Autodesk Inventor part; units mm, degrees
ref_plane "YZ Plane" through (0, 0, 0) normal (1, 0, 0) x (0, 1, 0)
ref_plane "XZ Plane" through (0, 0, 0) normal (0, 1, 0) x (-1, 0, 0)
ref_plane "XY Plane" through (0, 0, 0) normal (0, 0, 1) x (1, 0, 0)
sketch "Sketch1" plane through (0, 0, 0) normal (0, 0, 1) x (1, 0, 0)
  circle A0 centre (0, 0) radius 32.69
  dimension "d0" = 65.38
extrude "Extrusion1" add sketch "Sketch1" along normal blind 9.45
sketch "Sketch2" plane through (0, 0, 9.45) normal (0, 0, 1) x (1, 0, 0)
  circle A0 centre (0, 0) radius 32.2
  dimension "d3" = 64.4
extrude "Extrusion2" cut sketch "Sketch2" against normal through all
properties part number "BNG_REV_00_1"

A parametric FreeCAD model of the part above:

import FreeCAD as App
import Part
import Sketcher

doc = App.newDocument("Part")
body = doc.addObject("PartDesign::Body", "Body")

sketch1 = body.newObject("Sketcher::SketchObject", "Sketch")
sketch1.AttachmentSupport = (doc.getObject("XY_Plane"), [""])
sketch1.MapMode = "FlatFace"
sketch1.addGeometry(Part.Circle(App.Vector(0, 0, 0), App.Vector(0, 0, 1), 32.69), False)
sketch1.addConstraint(Sketcher.Constraint("Coincident", 0, 3, -1, 1))
sketch1.addConstraint(Sketcher.Constraint("Diameter", 0, 65.38))
pad1 = body.newObject("PartDesign::Pad", "Pad")
pad1.Profile = sketch1
pad1.Length = 9.45

sketch2 = body.newObject("Sketcher::SketchObject", "Sketch001")
sketch2.AttachmentSupport = (doc.getObject("XY_Plane"), [""])
sketch2.MapMode = "FlatFace"
sketch2.AttachmentOffset = App.Placement(App.Vector(0, 0, 9.45), App.Rotation())
sketch2.addGeometry(Part.Circle(App.Vector(0, 0, 0), App.Vector(0, 0, 1), 32.2), False)
sketch2.addConstraint(Sketcher.Constraint("Coincident", 0, 3, -1, 1))
sketch2.addConstraint(Sketcher.Constraint("Diameter", 0, 64.4))
pocket1 = body.newObject("PartDesign::Pocket", "Pocket")
pocket1.Profile = sketch2
pocket1.Type = "ThroughAll"

doc.recompute()
